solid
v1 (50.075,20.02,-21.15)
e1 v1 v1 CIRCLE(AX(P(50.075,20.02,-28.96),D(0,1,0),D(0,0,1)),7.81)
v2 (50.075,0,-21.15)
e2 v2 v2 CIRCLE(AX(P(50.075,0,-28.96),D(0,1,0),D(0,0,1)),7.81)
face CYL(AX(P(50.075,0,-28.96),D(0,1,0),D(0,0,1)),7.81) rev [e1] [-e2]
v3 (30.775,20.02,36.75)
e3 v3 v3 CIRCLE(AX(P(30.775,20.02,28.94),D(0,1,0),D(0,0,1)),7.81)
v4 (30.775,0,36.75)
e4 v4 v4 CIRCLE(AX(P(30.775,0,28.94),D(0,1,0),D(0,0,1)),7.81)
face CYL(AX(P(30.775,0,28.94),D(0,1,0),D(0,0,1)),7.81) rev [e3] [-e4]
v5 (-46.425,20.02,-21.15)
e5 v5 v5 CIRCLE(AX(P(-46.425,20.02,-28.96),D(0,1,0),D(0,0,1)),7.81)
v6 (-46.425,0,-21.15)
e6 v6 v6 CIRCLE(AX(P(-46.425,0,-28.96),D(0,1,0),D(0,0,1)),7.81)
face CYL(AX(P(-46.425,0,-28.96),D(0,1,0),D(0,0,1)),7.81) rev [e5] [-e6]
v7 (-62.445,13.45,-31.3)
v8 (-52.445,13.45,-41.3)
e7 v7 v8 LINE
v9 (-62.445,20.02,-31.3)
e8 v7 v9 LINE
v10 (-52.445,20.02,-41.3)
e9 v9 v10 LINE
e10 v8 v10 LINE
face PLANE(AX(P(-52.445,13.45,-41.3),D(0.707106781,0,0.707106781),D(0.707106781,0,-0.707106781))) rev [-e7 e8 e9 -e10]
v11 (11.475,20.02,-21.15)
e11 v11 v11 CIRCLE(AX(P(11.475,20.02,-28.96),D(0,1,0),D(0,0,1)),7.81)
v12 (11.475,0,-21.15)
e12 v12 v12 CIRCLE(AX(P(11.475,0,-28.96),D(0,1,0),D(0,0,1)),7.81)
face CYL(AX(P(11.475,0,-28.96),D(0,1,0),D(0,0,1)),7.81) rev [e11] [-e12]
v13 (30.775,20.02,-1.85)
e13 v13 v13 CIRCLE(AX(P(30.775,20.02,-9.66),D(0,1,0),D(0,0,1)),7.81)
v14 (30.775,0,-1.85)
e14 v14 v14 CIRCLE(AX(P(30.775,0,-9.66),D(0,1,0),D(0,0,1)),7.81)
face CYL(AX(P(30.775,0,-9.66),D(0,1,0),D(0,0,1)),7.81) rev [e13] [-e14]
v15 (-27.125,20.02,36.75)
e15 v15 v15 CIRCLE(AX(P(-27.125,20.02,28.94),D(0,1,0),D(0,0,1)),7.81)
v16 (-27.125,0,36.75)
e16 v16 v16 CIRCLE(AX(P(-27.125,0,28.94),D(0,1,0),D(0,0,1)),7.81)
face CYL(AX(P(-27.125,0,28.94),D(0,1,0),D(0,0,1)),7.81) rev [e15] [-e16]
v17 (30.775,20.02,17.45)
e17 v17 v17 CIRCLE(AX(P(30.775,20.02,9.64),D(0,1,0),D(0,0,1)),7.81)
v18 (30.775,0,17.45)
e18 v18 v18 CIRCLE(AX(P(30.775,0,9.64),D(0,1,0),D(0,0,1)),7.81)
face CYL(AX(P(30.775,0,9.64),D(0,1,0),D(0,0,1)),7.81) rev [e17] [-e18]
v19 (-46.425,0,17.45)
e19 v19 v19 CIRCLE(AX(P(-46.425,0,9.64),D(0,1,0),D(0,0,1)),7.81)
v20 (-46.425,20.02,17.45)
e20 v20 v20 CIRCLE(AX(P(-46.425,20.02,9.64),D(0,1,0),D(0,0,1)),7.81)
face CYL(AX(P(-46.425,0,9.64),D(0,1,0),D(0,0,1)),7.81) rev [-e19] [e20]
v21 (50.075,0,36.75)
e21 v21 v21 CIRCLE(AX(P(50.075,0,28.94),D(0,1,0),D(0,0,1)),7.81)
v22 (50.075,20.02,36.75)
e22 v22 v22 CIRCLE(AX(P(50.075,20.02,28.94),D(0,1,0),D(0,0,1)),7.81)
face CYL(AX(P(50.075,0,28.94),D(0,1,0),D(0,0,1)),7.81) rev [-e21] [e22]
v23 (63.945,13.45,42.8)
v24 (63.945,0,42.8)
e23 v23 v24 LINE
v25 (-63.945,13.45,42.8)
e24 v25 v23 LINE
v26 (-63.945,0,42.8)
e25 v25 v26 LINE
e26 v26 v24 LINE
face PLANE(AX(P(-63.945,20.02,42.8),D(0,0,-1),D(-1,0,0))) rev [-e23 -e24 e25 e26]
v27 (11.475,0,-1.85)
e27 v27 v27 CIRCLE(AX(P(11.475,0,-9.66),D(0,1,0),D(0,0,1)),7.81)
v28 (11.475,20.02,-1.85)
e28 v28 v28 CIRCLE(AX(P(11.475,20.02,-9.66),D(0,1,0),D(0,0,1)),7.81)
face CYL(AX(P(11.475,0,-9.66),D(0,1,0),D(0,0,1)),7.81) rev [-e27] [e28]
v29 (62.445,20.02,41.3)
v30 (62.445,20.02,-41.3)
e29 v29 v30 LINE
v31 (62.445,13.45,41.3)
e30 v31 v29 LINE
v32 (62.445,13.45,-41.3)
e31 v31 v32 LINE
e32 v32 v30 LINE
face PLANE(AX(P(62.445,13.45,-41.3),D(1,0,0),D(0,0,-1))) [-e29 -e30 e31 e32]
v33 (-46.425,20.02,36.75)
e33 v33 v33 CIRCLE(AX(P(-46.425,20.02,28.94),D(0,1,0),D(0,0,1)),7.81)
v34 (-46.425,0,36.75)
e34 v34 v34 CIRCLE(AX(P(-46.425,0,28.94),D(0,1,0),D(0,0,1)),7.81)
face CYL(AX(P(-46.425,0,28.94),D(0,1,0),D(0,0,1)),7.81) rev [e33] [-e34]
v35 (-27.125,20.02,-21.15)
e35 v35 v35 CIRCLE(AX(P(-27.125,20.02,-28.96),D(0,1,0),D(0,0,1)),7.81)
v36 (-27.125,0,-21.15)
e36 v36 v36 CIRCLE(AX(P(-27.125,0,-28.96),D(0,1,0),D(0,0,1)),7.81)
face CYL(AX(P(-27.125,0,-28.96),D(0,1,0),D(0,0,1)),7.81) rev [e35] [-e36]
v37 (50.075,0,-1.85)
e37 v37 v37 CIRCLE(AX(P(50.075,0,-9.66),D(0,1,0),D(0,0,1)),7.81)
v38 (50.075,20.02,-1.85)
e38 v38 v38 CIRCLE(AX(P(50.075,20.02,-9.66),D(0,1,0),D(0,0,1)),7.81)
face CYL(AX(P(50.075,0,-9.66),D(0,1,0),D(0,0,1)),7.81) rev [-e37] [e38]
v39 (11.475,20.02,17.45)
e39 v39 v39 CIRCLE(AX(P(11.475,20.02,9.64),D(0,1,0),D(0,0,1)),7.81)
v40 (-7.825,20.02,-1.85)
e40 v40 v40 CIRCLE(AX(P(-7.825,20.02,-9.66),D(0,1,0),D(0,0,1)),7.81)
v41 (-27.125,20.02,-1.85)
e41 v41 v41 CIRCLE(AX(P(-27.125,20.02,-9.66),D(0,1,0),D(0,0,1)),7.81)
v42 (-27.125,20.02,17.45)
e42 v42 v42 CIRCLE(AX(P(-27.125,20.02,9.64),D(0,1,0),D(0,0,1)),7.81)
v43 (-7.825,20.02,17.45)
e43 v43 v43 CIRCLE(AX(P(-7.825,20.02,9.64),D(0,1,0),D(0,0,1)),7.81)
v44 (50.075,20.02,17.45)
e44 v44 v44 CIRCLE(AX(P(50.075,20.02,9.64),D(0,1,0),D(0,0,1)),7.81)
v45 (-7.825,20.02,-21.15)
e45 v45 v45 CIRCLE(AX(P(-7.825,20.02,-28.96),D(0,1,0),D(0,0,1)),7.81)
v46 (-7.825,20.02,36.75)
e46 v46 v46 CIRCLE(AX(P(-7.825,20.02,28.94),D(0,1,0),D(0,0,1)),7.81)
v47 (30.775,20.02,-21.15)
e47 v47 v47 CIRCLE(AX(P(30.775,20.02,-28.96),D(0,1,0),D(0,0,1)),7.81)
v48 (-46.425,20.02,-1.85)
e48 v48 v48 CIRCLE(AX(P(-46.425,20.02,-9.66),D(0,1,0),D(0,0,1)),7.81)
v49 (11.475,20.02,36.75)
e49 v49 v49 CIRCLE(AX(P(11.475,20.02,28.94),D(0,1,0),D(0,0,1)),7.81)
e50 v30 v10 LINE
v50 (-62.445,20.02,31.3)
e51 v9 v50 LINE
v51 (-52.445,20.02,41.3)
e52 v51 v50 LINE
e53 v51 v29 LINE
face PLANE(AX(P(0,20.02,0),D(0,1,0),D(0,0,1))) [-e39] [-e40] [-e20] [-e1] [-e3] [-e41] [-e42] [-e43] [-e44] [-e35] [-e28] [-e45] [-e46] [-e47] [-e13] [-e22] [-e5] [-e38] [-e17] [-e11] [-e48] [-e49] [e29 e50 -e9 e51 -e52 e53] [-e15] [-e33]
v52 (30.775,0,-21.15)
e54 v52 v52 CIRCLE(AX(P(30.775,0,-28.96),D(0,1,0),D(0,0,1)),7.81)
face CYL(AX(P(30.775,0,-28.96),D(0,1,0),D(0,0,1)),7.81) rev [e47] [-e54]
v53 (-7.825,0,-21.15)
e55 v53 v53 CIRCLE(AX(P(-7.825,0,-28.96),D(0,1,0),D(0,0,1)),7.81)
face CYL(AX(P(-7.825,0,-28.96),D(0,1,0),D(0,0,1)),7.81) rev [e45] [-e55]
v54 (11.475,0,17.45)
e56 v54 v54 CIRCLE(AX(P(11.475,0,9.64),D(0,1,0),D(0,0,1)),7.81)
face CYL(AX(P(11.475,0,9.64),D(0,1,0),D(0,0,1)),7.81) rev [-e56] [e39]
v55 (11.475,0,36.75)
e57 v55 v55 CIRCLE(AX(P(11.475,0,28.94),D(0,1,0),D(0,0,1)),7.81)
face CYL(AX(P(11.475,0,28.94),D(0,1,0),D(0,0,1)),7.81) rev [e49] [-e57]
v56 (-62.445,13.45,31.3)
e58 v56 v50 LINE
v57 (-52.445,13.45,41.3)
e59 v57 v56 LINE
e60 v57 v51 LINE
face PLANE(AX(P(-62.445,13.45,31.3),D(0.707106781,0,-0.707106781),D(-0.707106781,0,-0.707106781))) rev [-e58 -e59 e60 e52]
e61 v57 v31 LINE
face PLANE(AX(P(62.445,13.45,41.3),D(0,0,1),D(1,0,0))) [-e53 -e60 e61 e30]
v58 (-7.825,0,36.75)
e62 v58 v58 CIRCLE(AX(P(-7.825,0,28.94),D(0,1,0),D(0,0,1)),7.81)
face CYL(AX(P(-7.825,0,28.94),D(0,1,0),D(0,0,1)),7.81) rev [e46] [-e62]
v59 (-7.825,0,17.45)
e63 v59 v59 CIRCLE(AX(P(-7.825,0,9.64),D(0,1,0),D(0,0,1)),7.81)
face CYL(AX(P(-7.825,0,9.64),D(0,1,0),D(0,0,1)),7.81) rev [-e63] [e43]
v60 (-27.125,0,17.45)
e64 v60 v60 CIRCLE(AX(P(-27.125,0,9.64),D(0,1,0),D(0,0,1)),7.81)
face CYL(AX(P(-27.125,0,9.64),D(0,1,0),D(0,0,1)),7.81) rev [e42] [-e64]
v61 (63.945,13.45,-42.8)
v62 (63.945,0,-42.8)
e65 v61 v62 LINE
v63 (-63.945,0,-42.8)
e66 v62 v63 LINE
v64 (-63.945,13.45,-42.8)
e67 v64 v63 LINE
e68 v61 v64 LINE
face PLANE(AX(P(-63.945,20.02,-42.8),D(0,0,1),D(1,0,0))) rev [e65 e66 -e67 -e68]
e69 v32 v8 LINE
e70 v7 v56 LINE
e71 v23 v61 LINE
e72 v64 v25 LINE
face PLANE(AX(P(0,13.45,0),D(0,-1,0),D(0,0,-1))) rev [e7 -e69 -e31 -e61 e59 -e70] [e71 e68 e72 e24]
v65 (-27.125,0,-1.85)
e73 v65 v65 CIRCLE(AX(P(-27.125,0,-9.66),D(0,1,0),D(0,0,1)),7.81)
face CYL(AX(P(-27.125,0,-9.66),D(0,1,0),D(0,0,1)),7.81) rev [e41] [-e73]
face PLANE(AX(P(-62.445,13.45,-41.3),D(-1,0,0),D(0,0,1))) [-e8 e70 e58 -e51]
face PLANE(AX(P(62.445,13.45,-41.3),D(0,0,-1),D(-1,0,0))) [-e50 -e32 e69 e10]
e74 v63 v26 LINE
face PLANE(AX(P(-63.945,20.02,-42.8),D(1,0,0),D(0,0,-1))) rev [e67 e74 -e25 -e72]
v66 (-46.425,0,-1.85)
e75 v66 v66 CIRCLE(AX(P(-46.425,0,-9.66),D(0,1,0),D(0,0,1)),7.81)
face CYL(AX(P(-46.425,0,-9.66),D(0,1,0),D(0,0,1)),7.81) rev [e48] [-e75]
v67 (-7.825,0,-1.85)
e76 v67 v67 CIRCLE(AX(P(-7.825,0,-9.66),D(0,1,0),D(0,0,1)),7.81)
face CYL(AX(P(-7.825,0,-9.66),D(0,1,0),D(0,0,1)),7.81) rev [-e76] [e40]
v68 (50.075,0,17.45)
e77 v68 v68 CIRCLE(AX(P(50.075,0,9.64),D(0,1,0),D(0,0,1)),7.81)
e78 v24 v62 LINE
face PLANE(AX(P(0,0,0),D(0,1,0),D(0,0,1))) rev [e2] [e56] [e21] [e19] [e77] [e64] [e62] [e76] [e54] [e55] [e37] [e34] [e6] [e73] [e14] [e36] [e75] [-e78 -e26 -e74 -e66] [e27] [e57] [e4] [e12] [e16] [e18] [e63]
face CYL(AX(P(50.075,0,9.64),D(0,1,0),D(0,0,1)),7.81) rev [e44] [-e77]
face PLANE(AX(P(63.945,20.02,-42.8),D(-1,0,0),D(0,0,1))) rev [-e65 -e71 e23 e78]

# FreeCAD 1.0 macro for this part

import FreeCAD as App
import Part
import Sketcher
from FreeCAD import Vector
Q = App.Units.Quantity


def add_polygon(sketch, points):
    """Adds a closed chain of lines whose ends are joined by coincident constraints."""
    first, n = sketch.GeometryCount, len(points)
    for a, b in zip(points, points[1:] + points[:1]):
        sketch.addGeometry(Part.LineSegment(App.Vector(*a, 0), App.Vector(*b, 0)), False)
    for i in range(n):
        sketch.addConstraint(Sketcher.Constraint("Coincident", first + i, 2, first + (i + 1) % n, 1))

doc = App.newDocument("Part")
params = doc.addObject("Spreadsheet::Sheet", "Params")
for row, (alias, value) in enumerate([
    ("sketch1_height", "85.6 mm"),
    ("sketch1_width", "127.89 mm"),
    ("pad1_length", "20.02 mm"),
    ("sketch2_diameter", "15.62 mm"),
    ("sketch3_height", "85.6 mm"),
    ("sketch3_height2", "82.6 mm"),
    ("sketch3_width", "127.89 mm"),
    ("sketch3_width2", "124.89 mm"),
    ("pocket2_length", "6.57 mm"),
    ("sketch4_width", "10 mm"),
    ("pocket3_length", "6.57 mm"),
], start=1):
    params.set(f"A{row}", alias)
    params.set(f"B{row}", "=" + value)
    params.setAlias(f"B{row}", alias)

body = doc.addObject("PartDesign::Body", "Body")

# Sketch on XZ plane
sketch1 = doc.addObject("Sketcher::SketchObject", "Sketch")
body.addObject(sketch1)
sketch1.AttachmentSupport = (doc.XZ_Plane, [""])
sketch1.MapMode = "FlatFace"
add_polygon(sketch1, [(-64, -43), (-64, 43), (64, 43), (64, -43)])  # lines 0-3
sketch1.addConstraint([
    Sketcher.Constraint("Vertical", 0),
    Sketcher.Constraint("Horizontal", 1),
    Sketcher.Constraint("Vertical", 2),
    Sketcher.Constraint("Horizontal", 3),
    Sketcher.Constraint("Symmetric", 0, 2, 2, 2, -1, 1),
    Sketcher.Constraint("DistanceY", 0, 1, 0, 2, Q("85.6 mm")),
    Sketcher.Constraint("DistanceX", 1, 1, 1, 2, Q("127.89 mm")),
])
sketch1.setExpression("Constraints[9]", "Params.sketch1_height")
sketch1.setExpression("Constraints[10]", "Params.sketch1_width")
pad1 = doc.addObject("PartDesign::Pad", "Pad")
body.addObject(pad1)
pad1.Profile = sketch1
pad1.setExpression("Length", "Params.pad1_length")
pad1.Reversed = True

# Sketch on XZ plane
sketch2 = doc.addObject("Sketcher::SketchObject", "Sketch001")
body.addObject(sketch2)
sketch2.AttachmentSupport = (doc.XZ_Plane, [""])
sketch2.MapMode = "FlatFace"
sketch2.AttachmentOffset = App.Placement(Vector(0, 0, -20.02), App.Rotation())
sketch2.addGeometry([
    Part.Circle(Vector(-46, -29, 0), Vector(0, 0, 1), 8),  # 0
    Part.Circle(Vector(-27, -29, 0), Vector(0, 0, 1), 8),  # 1
    Part.Circle(Vector(-8, -29, 0), Vector(0, 0, 1), 8),  # 2
    Part.Circle(Vector(11, -29, 0), Vector(0, 0, 1), 8),  # 3
    Part.Circle(Vector(31, -29, 0), Vector(0, 0, 1), 8),  # 4
    Part.Circle(Vector(50, -29, 0), Vector(0, 0, 1), 8),  # 5
    Part.Circle(Vector(-27, -10, 0), Vector(0, 0, 1), 8),  # 6
    Part.Circle(Vector(-8, -10, 0), Vector(0, 0, 1), 8),  # 7
    Part.Circle(Vector(11, -10, 0), Vector(0, 0, 1), 8),  # 8
    Part.Circle(Vector(31, -10, 0), Vector(0, 0, 1), 8),  # 9
    Part.Circle(Vector(50, -10, 0), Vector(0, 0, 1), 8),  # 10
    Part.Circle(Vector(-27, 10, 0), Vector(0, 0, 1), 8),  # 11
    Part.Circle(Vector(-8, 10, 0), Vector(0, 0, 1), 8),  # 12
    Part.Circle(Vector(11, 10, 0), Vector(0, 0, 1), 8),  # 13
    Part.Circle(Vector(31, 10, 0), Vector(0, 0, 1), 8),  # 14
    Part.Circle(Vector(50, 10, 0), Vector(0, 0, 1), 8),  # 15
    Part.Circle(Vector(-27, 29, 0), Vector(0, 0, 1), 8),  # 16
    Part.Circle(Vector(-8, 29, 0), Vector(0, 0, 1), 8),  # 17
    Part.Circle(Vector(11, 29, 0), Vector(0, 0, 1), 8),  # 18
    Part.Circle(Vector(31, 29, 0), Vector(0, 0, 1), 8),  # 19
    Part.Circle(Vector(50, 29, 0), Vector(0, 0, 1), 8),  # 20
    Part.Circle(Vector(-46, -10, 0), Vector(0, 0, 1), 8),  # 21
    Part.Circle(Vector(-46, 10, 0), Vector(0, 0, 1), 8),  # 22
    Part.Circle(Vector(-46, 29, 0), Vector(0, 0, 1), 8),  # 23
], False)
sketch2.addConstraint([
    Sketcher.Constraint("Equal", 0, 1),
    Sketcher.Constraint("Equal", 1, 2),
    Sketcher.Constraint("Equal", 2, 3),
    Sketcher.Constraint("Equal", 3, 4),
    Sketcher.Constraint("Equal", 4, 5),
    Sketcher.Constraint("Equal", 5, 6),
    Sketcher.Constraint("Equal", 6, 7),
    Sketcher.Constraint("Equal", 7, 8),
    Sketcher.Constraint("Equal", 8, 9),
    Sketcher.Constraint("Equal", 9, 10),
    Sketcher.Constraint("Equal", 10, 11),
    Sketcher.Constraint("Equal", 11, 12),
    Sketcher.Constraint("Equal", 12, 13),
    Sketcher.Constraint("Equal", 13, 14),
    Sketcher.Constraint("Equal", 14, 15),
    Sketcher.Constraint("Equal", 15, 16),
    Sketcher.Constraint("Equal", 16, 17),
    Sketcher.Constraint("Equal", 17, 18),
    Sketcher.Constraint("Equal", 18, 19),
    Sketcher.Constraint("Equal", 19, 20),
    Sketcher.Constraint("Equal", 20, 21),
    Sketcher.Constraint("Equal", 21, 22),
    Sketcher.Constraint("Equal", 22, 23),
    Sketcher.Constraint("Horizontal", 0, 3, 1, 3),
    Sketcher.Constraint("Horizontal", 1, 3, 2, 3),
    Sketcher.Constraint("Horizontal", 2, 3, 3, 3),
    Sketcher.Constraint("Horizontal", 3, 3, 4, 3),
    Sketcher.Constraint("Horizontal", 4, 3, 5, 3),
    Sketcher.Constraint("Horizontal", 6, 3, 7, 3),
    Sketcher.Constraint("Horizontal", 7, 3, 8, 3),
    Sketcher.Constraint("Horizontal", 8, 3, 9, 3),
    Sketcher.Constraint("Horizontal", 9, 3, 10, 3),
    Sketcher.Constraint("Horizontal", 11, 3, 12, 3),
    Sketcher.Constraint("Horizontal", 12, 3, 13, 3),
    Sketcher.Constraint("Horizontal", 13, 3, 14, 3),
    Sketcher.Constraint("Horizontal", 14, 3, 15, 3),
    Sketcher.Constraint("Horizontal", 16, 3, 17, 3),
    Sketcher.Constraint("Horizontal", 17, 3, 18, 3),
    Sketcher.Constraint("Horizontal", 18, 3, 19, 3),
    Sketcher.Constraint("Horizontal", 19, 3, 20, 3),
    Sketcher.Constraint("Horizontal", 10, 3, 21, 3),
    Sketcher.Constraint("Horizontal", 15, 3, 22, 3),
    Sketcher.Constraint("Horizontal", 20, 3, 23, 3),
    Sketcher.Constraint("Vertical", 1, 3, 6, 3),
    Sketcher.Constraint("Vertical", 2, 3, 7, 3),
    Sketcher.Constraint("Vertical", 3, 3, 8, 3),
    Sketcher.Constraint("Vertical", 4, 3, 9, 3),
    Sketcher.Constraint("Vertical", 5, 3, 10, 3),
    Sketcher.Constraint("Vertical", 6, 3, 11, 3),
    Sketcher.Constraint("Vertical", 7, 3, 12, 3),
    Sketcher.Constraint("Vertical", 8, 3, 13, 3),
    Sketcher.Constraint("Vertical", 9, 3, 14, 3),
    Sketcher.Constraint("Vertical", 10, 3, 15, 3),
    Sketcher.Constraint("Vertical", 11, 3, 16, 3),
    Sketcher.Constraint("Vertical", 12, 3, 17, 3),
    Sketcher.Constraint("Vertical", 13, 3, 18, 3),
    Sketcher.Constraint("Vertical", 14, 3, 19, 3),
    Sketcher.Constraint("Vertical", 15, 3, 20, 3),
    Sketcher.Constraint("Vertical", 0, 3, 21, 3),
    Sketcher.Constraint("Vertical", 21, 3, 22, 3),
    Sketcher.Constraint("Vertical", 22, 3, 23, 3),
    Sketcher.Constraint("Diameter", 0, Q("15.62 mm")),
    Sketcher.Constraint("DistanceX", 0, 3, 1, 3, Q("19.3 mm")),
    Sketcher.Constraint("DistanceX", 1, 3, 2, 3, Q("19.3 mm")),
    Sketcher.Constraint("DistanceX", 2, 3, 3, 3, Q("19.3 mm")),
    Sketcher.Constraint("DistanceX", 3, 3, 4, 3, Q("19.3 mm")),
    Sketcher.Constraint("DistanceX", 4, 3, 5, 3, Q("19.3 mm")),
    Sketcher.Constraint("DistanceY", 1, 3, 6, 3, Q("19.3 mm")),
    Sketcher.Constraint("DistanceY", 6, 3, 11, 3, Q("19.3 mm")),
    Sketcher.Constraint("DistanceY", 11, 3, 16, 3, Q("19.3 mm")),
    Sketcher.Constraint("DistanceY", 0, 3, -1, 1, Q("28.96 mm")),
    Sketcher.Constraint("DistanceX", 0, 3, -1, 1, Q("46.425 mm")),
])
sketch2.setExpression("Constraints[61]", "Params.sketch2_diameter")
pocket1 = doc.addObject("PartDesign::Pocket", "Pocket")
body.addObject(pocket1)
pocket1.Profile = sketch2
pocket1.Type = "ThroughAll"
pocket1.Reversed = True

# Sketch on XZ plane
sketch3 = doc.addObject("Sketcher::SketchObject", "Sketch002")
body.addObject(sketch3)
sketch3.AttachmentSupport = (doc.XZ_Plane, [""])
sketch3.MapMode = "FlatFace"
sketch3.AttachmentOffset = App.Placement(Vector(0, 0, -20.02), App.Rotation())
add_polygon(sketch3, [(-64, -43), (-64, 43), (64, 43), (64, -43)])  # lines 0-3
add_polygon(sketch3, [(62, 41), (-62, 41), (-62, -41), (62, -41)])  # lines 4-7
sketch3.addConstraint([
    Sketcher.Constraint("Vertical", 0),
    Sketcher.Constraint("Horizontal", 1),
    Sketcher.Constraint("Vertical", 2),
    Sketcher.Constraint("Horizontal", 3),
    Sketcher.Constraint("Horizontal", 4),
    Sketcher.Constraint("Vertical", 5),
    Sketcher.Constraint("Horizontal", 6),
    Sketcher.Constraint("Vertical", 7),
    Sketcher.Constraint("Symmetric", 0, 2, 2, 2, -1, 1),
    Sketcher.Constraint("Symmetric", 4, 2, 6, 2, -1, 1),
    Sketcher.Constraint("DistanceY", 0, 1, 0, 2, Q("85.6 mm")),
    Sketcher.Constraint("DistanceY", 5, 2, 5, 1, Q("82.6 mm")),
    Sketcher.Constraint("DistanceX", 1, 1, 1, 2, Q("127.89 mm")),
    Sketcher.Constraint("DistanceX", 4, 2, 4, 1, Q("124.89 mm")),
])
sketch3.setExpression("Constraints[18]", "Params.sketch3_height")
sketch3.setExpression("Constraints[19]", "Params.sketch3_height2")
sketch3.setExpression("Constraints[20]", "Params.sketch3_width")
sketch3.setExpression("Constraints[21]", "Params.sketch3_width2")
pocket2 = doc.addObject("PartDesign::Pocket", "Pocket001")
body.addObject(pocket2)
pocket2.Profile = sketch3
pocket2.setExpression("Length", "Params.pocket2_length")
pocket2.Reversed = True

# Sketch on XZ plane
sketch4 = doc.addObject("Sketcher::SketchObject", "Sketch003")
body.addObject(sketch4)
sketch4.AttachmentSupport = (doc.XZ_Plane, [""])
sketch4.MapMode = "FlatFace"
sketch4.AttachmentOffset = App.Placement(Vector(0, 0, -20.02), App.Rotation())
add_polygon(sketch4, [(-52, -41), (-62, -41), (-62, -31)])  # lines 0-2
add_polygon(sketch4, [(-62, 41), (-52, 41), (-62, 31)])  # lines 3-5
sketch4.addConstraint([
    Sketcher.Constraint("Horizontal", 0),
    Sketcher.Constraint("Vertical", 1),
    Sketcher.Constraint("Horizontal", 3),
    Sketcher.Constraint("Vertical", 5),
    Sketcher.Constraint("Symmetric", 2, 2, 3, 2, -1),
    Sketcher.Constraint("Symmetric", 1, 2, 4, 2, -1),
    Sketcher.Constraint("Perpendicular", 2, 4),
    Sketcher.Constraint("DistanceX", 0, 2, 0, 1, Q("10 mm")),
    Sketcher.Constraint("DistanceY", 0, 2, -1, 1, Q("41.3 mm")),
    Sketcher.Constraint("DistanceX", 0, 2, -1, 1, Q("62.445 mm")),
])
sketch4.setExpression("Constraints[13]", "Params.sketch4_width")
pocket3 = doc.addObject("PartDesign::Pocket", "Pocket002")
body.addObject(pocket3)
pocket3.Profile = sketch4
pocket3.setExpression("Length", "Params.pocket3_length")
pocket3.Reversed = True

doc.recompute()
